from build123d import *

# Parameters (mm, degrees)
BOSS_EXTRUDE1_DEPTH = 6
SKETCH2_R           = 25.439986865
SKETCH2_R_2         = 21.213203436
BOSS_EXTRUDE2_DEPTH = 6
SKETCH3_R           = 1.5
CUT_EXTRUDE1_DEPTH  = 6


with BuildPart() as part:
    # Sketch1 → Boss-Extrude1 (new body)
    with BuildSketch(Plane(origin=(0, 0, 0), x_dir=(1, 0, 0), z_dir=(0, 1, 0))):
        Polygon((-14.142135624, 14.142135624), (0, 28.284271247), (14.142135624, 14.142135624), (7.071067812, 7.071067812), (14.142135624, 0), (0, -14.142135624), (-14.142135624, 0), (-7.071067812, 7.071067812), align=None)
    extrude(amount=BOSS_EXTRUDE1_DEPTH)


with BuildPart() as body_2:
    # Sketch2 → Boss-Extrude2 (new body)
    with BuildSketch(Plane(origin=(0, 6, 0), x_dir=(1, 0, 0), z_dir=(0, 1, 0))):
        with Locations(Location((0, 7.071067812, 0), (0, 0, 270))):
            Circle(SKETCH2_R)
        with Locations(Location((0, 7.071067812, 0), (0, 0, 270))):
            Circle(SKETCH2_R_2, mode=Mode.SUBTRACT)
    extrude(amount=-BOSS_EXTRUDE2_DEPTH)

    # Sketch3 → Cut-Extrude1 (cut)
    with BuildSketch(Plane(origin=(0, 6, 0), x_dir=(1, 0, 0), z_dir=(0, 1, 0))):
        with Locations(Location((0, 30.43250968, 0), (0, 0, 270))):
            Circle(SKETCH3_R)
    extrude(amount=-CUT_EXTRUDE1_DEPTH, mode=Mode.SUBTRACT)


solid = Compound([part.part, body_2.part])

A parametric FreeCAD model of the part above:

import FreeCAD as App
import Part
import Sketcher


def add_polygon(sketch, points):
    """Adds a closed chain of lines whose ends are joined by coincident constraints."""
    first, n = sketch.GeometryCount, len(points)
    for a, b in zip(points, points[1:] + points[:1]):
        sketch.addGeometry(Part.LineSegment(App.Vector(*a, 0), App.Vector(*b, 0)), False)
    for i in range(n):
        sketch.addConstraint(Sketcher.Constraint("Coincident", first + i, 2, first + (i + 1) % n, 1))

doc = App.newDocument("Part")
body = doc.addObject("PartDesign::Body", "Body")

# Sketch on XZ plane
sketch1 = body.newObject("Sketcher::SketchObject", "Sketch")
sketch1.AttachmentSupport = (doc.getObject("XZ_Plane"), [""])
sketch1.MapMode = "FlatFace"
add_polygon(sketch1, [(0, -28), (-14, -14), (-7, -7), (-14, 0), (0, 14), (14, 0), (7, -7), (14, -14)])  # lines 0-7
sketch1.addConstraint([
    Sketcher.Constraint("Symmetric", 2, 2, 4, 2, -1, 1),
    Sketcher.Constraint("Symmetric", 1, 2, 5, 2, -2),
    Sketcher.Constraint("Symmetric", 0, 2, 6, 2, -2),
    Sketcher.Constraint("PointOnObject", 2, 2, -1),
    Sketcher.Constraint("PointOnObject", 3, 2, -2),
    Sketcher.Constraint("PointOnObject", 7, 2, -2),
    Sketcher.Constraint("Perpendicular", 0, 1),
    Sketcher.Constraint("Perpendicular", 1, 2),
    Sketcher.Constraint("Perpendicular", 2, 3),
    Sketcher.Constraint("Perpendicular", 3, 4),
    Sketcher.Constraint("Vertical", 0, 2, 2, 2),
    Sketcher.Constraint("Distance", 0, 20.0),
    Sketcher.Constraint("Distance", 1, 10.0),
])
pad1 = body.newObject("PartDesign::Pad", "Pad")
pad1.Profile = sketch1
pad1.Length = 6
pad1.Reversed = True
body2 = doc.addObject("PartDesign::Body", "Body001")

# Sketch on XZ plane
sketch2 = body2.newObject("Sketcher::SketchObject", "Sketch001")
sketch2.AttachmentSupport = (doc.getObject("XZ_Plane001"), [""])
sketch2.MapMode = "FlatFace"
sketch2.AttachmentOffset = App.Placement(App.Vector(0, 0, -6), App.Rotation())
sketch2.addGeometry([
    Part.Circle(App.Vector(0, -7, 0), App.Vector(0, 0, 1), 25),
    Part.Circle(App.Vector(0, -7, 0), App.Vector(0, 0, 1), 21),
], False)
sketch2.addConstraint([
    Sketcher.Constraint("Coincident", 1, 3, 0, 3),
    Sketcher.Constraint("PointOnObject", 0, 3, -2),
    Sketcher.Constraint("Diameter", 0, 50.879974),
    Sketcher.Constraint("Diameter", 1, 42.426407),
    Sketcher.Constraint("DistanceY", 0, 3, -1, 1, 7.071068),
])
pad2 = body2.newObject("PartDesign::Pad", "Pad001")
pad2.Profile = sketch2
pad2.Length = 6

# Sketch on XZ plane
sketch3 = body2.newObject("Sketcher::SketchObject", "Sketch002")
sketch3.AttachmentSupport = (doc.getObject("XZ_Plane001"), [""])
sketch3.MapMode = "FlatFace"
sketch3.AttachmentOffset = App.Placement(App.Vector(0, 0, -6), App.Rotation())
sketch3.addGeometry(Part.Circle(App.Vector(0, -30.4, 0), App.Vector(0, 0, 1), 1.5), False)
sketch3.addConstraint([
    Sketcher.Constraint("PointOnObject", 0, 3, -2),
    Sketcher.Constraint("Diameter", 0, 3.0),
    Sketcher.Constraint("DistanceY", 0, 3, -1, 1, 30.43251),
])
pocket1 = body2.newObject("PartDesign::Pocket", "Pocket")
pocket1.Profile = sketch3
pocket1.Length = 6
pocket1.Reversed = True

doc.recompute()
